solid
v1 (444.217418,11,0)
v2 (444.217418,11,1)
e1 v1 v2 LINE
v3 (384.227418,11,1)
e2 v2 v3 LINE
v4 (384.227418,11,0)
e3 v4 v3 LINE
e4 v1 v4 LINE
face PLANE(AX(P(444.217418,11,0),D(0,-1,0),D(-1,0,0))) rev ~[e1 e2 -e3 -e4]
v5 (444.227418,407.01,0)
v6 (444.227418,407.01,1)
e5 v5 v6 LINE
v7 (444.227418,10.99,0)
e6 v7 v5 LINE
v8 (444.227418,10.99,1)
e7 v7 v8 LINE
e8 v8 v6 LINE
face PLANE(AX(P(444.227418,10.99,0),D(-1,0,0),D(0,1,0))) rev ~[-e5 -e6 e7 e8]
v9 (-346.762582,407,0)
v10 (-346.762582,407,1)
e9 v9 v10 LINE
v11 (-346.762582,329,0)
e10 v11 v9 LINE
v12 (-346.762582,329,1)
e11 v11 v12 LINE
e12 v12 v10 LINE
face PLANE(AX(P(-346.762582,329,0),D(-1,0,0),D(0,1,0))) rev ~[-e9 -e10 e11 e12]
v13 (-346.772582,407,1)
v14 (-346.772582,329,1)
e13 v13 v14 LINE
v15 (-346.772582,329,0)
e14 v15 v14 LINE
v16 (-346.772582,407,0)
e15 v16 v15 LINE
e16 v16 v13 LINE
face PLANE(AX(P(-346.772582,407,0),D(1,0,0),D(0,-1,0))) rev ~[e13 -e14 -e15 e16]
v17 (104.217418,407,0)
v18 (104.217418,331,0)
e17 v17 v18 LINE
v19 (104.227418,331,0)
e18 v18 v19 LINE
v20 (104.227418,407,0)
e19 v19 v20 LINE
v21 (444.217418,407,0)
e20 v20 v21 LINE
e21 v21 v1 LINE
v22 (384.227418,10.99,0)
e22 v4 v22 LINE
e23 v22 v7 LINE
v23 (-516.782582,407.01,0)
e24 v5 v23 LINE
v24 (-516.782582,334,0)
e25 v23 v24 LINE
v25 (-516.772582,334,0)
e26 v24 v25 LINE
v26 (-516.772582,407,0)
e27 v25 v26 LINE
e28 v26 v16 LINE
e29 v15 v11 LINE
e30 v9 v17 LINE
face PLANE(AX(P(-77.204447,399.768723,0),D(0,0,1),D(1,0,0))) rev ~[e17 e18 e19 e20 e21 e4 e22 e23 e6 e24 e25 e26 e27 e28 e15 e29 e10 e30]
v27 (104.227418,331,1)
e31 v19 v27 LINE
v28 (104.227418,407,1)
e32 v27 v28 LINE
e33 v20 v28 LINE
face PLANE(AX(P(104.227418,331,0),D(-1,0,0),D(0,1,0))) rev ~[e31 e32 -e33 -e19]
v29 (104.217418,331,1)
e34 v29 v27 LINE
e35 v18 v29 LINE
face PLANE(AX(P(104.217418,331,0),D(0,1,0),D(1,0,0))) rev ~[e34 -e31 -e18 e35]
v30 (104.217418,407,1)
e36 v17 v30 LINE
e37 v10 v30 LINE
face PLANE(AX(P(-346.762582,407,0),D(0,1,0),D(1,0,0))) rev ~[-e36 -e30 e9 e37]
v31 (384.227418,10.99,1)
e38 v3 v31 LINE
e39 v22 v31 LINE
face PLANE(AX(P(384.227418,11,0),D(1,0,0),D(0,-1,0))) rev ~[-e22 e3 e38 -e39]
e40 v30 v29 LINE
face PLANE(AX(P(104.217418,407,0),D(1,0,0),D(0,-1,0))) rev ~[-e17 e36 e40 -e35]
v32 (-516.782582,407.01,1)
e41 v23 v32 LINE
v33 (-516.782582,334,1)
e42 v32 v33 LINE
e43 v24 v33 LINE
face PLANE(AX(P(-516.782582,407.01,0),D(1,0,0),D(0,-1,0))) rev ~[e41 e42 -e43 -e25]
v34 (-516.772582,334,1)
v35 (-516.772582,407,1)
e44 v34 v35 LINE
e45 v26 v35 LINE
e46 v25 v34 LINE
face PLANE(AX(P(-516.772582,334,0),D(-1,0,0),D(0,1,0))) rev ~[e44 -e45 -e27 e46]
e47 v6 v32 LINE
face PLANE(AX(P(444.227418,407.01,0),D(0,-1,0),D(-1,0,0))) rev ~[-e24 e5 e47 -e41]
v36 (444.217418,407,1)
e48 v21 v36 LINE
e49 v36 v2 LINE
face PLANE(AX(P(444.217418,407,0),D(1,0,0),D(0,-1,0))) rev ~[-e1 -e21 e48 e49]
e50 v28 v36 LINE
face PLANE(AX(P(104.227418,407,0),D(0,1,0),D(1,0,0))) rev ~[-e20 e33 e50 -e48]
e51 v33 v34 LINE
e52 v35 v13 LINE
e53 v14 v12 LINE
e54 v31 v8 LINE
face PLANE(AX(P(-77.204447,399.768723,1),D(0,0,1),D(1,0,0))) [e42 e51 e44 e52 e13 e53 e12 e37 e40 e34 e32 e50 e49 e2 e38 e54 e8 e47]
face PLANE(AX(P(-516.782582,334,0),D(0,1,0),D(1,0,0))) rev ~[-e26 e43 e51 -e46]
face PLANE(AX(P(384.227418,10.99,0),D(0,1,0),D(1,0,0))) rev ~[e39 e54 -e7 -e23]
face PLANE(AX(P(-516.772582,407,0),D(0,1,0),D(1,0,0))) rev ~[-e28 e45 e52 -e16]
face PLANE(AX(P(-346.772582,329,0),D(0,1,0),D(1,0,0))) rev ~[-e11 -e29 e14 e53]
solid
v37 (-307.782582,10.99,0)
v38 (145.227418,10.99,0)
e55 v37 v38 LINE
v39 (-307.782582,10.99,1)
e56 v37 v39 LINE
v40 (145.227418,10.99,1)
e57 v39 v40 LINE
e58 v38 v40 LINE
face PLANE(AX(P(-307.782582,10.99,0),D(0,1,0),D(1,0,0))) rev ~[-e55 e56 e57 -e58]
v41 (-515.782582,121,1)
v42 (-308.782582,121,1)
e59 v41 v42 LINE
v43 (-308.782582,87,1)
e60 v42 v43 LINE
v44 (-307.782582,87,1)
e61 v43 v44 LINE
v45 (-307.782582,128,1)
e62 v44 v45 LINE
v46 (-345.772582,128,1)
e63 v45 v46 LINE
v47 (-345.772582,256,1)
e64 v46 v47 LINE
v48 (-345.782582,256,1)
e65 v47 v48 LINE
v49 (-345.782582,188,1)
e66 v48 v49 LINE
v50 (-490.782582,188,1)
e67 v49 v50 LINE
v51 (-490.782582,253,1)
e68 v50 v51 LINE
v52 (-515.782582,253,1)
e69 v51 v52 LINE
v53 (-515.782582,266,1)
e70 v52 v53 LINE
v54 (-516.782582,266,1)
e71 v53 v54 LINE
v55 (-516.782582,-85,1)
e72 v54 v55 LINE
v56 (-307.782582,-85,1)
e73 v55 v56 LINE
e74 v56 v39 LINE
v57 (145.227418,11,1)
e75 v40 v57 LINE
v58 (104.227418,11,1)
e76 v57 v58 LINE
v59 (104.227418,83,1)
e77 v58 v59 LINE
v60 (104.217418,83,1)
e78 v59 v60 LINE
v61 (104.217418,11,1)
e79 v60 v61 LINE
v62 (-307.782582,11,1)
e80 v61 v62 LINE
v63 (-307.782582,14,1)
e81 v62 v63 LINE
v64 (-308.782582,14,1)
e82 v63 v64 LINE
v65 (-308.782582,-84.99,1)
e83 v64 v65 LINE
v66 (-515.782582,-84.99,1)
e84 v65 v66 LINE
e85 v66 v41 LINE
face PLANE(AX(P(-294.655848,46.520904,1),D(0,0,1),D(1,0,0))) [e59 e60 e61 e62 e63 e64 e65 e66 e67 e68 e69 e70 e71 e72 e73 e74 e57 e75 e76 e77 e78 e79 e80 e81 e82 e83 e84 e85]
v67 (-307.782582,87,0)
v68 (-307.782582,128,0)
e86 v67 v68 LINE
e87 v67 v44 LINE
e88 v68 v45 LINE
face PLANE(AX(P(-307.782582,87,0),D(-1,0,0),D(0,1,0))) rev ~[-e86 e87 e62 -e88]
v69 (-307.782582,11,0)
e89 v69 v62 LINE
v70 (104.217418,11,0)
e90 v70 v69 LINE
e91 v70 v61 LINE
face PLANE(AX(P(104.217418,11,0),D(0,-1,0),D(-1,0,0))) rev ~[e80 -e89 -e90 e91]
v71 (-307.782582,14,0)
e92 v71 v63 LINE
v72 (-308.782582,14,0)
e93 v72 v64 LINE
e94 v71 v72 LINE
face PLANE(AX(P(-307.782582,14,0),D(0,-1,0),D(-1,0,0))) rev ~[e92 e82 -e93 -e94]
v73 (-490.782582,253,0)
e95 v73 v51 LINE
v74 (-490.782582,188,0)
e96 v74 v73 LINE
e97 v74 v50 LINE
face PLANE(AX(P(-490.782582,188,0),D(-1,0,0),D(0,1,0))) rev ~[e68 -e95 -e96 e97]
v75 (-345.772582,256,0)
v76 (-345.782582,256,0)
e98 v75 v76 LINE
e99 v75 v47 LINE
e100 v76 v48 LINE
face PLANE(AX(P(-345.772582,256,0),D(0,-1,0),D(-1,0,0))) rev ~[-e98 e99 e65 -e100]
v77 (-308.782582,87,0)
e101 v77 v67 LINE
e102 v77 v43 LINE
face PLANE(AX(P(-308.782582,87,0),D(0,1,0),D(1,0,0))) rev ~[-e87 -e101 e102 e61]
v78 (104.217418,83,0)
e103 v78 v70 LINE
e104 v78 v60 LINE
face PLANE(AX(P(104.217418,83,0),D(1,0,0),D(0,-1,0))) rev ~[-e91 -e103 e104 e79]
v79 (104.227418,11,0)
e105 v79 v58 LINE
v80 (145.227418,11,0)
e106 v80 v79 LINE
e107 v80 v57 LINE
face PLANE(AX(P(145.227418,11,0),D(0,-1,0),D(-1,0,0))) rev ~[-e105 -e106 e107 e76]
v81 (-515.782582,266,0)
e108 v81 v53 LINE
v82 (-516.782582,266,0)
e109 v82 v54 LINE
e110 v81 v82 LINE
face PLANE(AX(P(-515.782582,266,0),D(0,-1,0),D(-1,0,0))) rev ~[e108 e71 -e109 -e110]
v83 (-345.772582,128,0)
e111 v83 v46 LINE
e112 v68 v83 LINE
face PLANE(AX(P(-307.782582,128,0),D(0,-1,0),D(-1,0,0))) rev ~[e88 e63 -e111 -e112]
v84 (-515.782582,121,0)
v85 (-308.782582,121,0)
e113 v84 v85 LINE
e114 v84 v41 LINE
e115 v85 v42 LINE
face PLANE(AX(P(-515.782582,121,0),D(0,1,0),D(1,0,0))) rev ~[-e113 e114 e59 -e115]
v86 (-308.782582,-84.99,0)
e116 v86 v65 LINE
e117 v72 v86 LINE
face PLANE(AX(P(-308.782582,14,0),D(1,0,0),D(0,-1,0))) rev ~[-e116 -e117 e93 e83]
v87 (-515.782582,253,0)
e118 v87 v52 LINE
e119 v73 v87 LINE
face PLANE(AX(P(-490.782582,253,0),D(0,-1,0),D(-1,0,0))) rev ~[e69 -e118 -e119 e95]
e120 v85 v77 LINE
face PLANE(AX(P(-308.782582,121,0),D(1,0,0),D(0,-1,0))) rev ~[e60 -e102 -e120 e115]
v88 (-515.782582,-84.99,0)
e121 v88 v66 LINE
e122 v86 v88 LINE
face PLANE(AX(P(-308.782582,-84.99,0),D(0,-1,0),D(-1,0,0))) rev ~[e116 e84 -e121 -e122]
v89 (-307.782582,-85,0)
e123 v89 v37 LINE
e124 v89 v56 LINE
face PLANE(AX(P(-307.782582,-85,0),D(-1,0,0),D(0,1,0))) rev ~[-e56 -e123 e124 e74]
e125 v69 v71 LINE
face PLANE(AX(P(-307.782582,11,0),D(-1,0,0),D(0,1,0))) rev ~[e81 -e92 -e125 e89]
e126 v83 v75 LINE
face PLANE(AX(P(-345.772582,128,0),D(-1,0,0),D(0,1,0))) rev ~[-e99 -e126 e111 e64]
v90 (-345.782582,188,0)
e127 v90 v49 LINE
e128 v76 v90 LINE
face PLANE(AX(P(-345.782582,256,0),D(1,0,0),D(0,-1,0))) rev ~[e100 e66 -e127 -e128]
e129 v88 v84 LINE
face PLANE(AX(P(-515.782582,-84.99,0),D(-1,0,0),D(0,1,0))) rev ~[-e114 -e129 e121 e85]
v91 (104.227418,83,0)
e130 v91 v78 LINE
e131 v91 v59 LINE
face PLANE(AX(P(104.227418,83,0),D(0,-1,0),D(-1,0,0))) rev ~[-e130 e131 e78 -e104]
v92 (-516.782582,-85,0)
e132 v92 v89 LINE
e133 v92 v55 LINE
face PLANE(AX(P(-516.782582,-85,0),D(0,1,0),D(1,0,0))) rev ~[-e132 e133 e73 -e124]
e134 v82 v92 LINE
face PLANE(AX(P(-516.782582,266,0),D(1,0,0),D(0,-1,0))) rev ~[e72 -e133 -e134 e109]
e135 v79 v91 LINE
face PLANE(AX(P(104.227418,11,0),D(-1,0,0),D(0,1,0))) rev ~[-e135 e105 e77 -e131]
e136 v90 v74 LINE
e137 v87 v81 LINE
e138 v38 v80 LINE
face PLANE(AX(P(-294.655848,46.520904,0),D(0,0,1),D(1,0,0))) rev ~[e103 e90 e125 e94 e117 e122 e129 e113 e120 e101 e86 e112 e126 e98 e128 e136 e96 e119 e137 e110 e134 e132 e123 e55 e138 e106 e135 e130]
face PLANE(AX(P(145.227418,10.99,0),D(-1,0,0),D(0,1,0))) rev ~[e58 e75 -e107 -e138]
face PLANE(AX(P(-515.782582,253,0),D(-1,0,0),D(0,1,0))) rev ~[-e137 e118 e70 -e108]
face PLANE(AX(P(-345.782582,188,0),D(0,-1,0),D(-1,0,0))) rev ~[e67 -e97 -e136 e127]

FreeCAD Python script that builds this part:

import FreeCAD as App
import Part
import Sketcher

doc = App.newDocument("Part")
body = doc.addObject("PartDesign::Body", "Body")
body.AllowCompound = True

# Sketch on XY plane
sketch1 = doc.addObject("Sketcher::SketchObject", "Sketch")
body.addObject(sketch1)
sketch1.AttachmentSupport = (doc.XY_Plane, [""])
sketch1.MapMode = "FlatFace"
sketch1.addGeometry(Part.LineSegment(App.Vector(104.217418, 83, 0), App.Vector(104.217418, 11, 0)), False)
sketch1.addGeometry(Part.LineSegment(App.Vector(104.217418, 11, 0), App.Vector(-307.782582, 11, 0)), False)
sketch1.addGeometry(Part.LineSegment(App.Vector(-307.782582, 11, 0), App.Vector(-307.782582, 14, 0)), False)
sketch1.addGeometry(Part.LineSegment(App.Vector(-307.782582, 14, 0), App.Vector(-308.782582, 14, 0)), False)
sketch1.addGeometry(Part.LineSegment(App.Vector(-308.782582, 14, 0), App.Vector(-308.782582, -84.99, 0)), False)
sketch1.addGeometry(Part.LineSegment(App.Vector(-308.782582, -84.99, 0), App.Vector(-515.782582, -84.99, 0)), False)
sketch1.addGeometry(Part.LineSegment(App.Vector(-515.782582, -84.99, 0), App.Vector(-515.782582, 121, 0)), False)
sketch1.addGeometry(Part.LineSegment(App.Vector(-515.782582, 121, 0), App.Vector(-308.782582, 121, 0)), False)
sketch1.addGeometry(Part.LineSegment(App.Vector(-308.782582, 121, 0), App.Vector(-308.782582, 87, 0)), False)
sketch1.addGeometry(Part.LineSegment(App.Vector(-308.782582, 87, 0), App.Vector(-307.782582, 87, 0)), False)
sketch1.addGeometry(Part.LineSegment(App.Vector(-307.782582, 87, 0), App.Vector(-307.782582, 128, 0)), False)
sketch1.addGeometry(Part.LineSegment(App.Vector(-307.782582, 128, 0), App.Vector(-345.772582, 128, 0)), False)
sketch1.addGeometry(Part.LineSegment(App.Vector(-345.772582, 128, 0), App.Vector(-345.772582, 256, 0)), False)
sketch1.addGeometry(Part.LineSegment(App.Vector(-345.772582, 256, 0), App.Vector(-345.782582, 256, 0)), False)
sketch1.addGeometry(Part.LineSegment(App.Vector(-345.782582, 256, 0), App.Vector(-345.782582, 188, 0)), False)
sketch1.addGeometry(Part.LineSegment(App.Vector(-345.782582, 188, 0), App.Vector(-490.782582, 188, 0)), False)
sketch1.addGeometry(Part.LineSegment(App.Vector(-490.782582, 188, 0), App.Vector(-490.782582, 253, 0)), False)
sketch1.addGeometry(Part.LineSegment(App.Vector(-490.782582, 253, 0), App.Vector(-515.782582, 253, 0)), False)
sketch1.addGeometry(Part.LineSegment(App.Vector(-515.782582, 253, 0), App.Vector(-515.782582, 266, 0)), False)
sketch1.addGeometry(Part.LineSegment(App.Vector(-515.782582, 266, 0), App.Vector(-516.782582, 266, 0)), False)
sketch1.addGeometry(Part.LineSegment(App.Vector(-516.782582, 266, 0), App.Vector(-516.782582, -85, 0)), False)
sketch1.addGeometry(Part.LineSegment(App.Vector(-516.782582, -85, 0), App.Vector(-307.782582, -85, 0)), False)
sketch1.addGeometry(Part.LineSegment(App.Vector(-307.782582, -85, 0), App.Vector(-307.782582, 10.99, 0)), False)
sketch1.addGeometry(Part.LineSegment(App.Vector(-307.782582, 10.99, 0), App.Vector(145.227418, 10.99, 0)), False)
sketch1.addGeometry(Part.LineSegment(App.Vector(145.227418, 10.99, 0), App.Vector(145.227418, 11, 0)), False)
sketch1.addGeometry(Part.LineSegment(App.Vector(145.227418, 11, 0), App.Vector(104.227418, 11, 0)), False)
sketch1.addGeometry(Part.LineSegment(App.Vector(104.227418, 11, 0), App.Vector(104.227418, 83, 0)), False)
sketch1.addGeometry(Part.LineSegment(App.Vector(104.227418, 83, 0), App.Vector(104.217418, 83, 0)), False)
sketch1.addGeometry(Part.LineSegment(App.Vector(-346.762582, 407, 0), App.Vector(104.217418, 407, 0)), False)
sketch1.addGeometry(Part.LineSegment(App.Vector(104.217418, 407, 0), App.Vector(104.217418, 331, 0)), False)
sketch1.addGeometry(Part.LineSegment(App.Vector(104.217418, 331, 0), App.Vector(104.227418, 331, 0)), False)
sketch1.addGeometry(Part.LineSegment(App.Vector(104.227418, 331, 0), App.Vector(104.227418, 407, 0)), False)
sketch1.addGeometry(Part.LineSegment(App.Vector(104.227418, 407, 0), App.Vector(444.217418, 407, 0)), False)
sketch1.addGeometry(Part.LineSegment(App.Vector(444.217418, 407, 0), App.Vector(444.217418, 11, 0)), False)
sketch1.addGeometry(Part.LineSegment(App.Vector(444.217418, 11, 0), App.Vector(384.227418, 11, 0)), False)
sketch1.addGeometry(Part.LineSegment(App.Vector(384.227418, 11, 0), App.Vector(384.227418, 10.99, 0)), False)
sketch1.addGeometry(Part.LineSegment(App.Vector(384.227418, 10.99, 0), App.Vector(444.227418, 10.99, 0)), False)
sketch1.addGeometry(Part.LineSegment(App.Vector(444.227418, 10.99, 0), App.Vector(444.227418, 407.01, 0)), False)
sketch1.addGeometry(Part.LineSegment(App.Vector(444.227418, 407.01, 0), App.Vector(-516.782582, 407.01, 0)), False)
sketch1.addGeometry(Part.LineSegment(App.Vector(-516.782582, 407.01, 0), App.Vector(-516.782582, 334, 0)), False)
sketch1.addGeometry(Part.LineSegment(App.Vector(-516.782582, 334, 0), App.Vector(-516.772582, 334, 0)), False)
sketch1.addGeometry(Part.LineSegment(App.Vector(-516.772582, 334, 0), App.Vector(-516.772582, 407, 0)), False)
sketch1.addGeometry(Part.LineSegment(App.Vector(-516.772582, 407, 0), App.Vector(-346.772582, 407, 0)), False)
sketch1.addGeometry(Part.LineSegment(App.Vector(-346.772582, 407, 0), App.Vector(-346.772582, 329, 0)), False)
sketch1.addGeometry(Part.LineSegment(App.Vector(-346.772582, 329, 0), App.Vector(-346.762582, 329, 0)), False)
sketch1.addGeometry(Part.LineSegment(App.Vector(-346.762582, 329, 0), App.Vector(-346.762582, 407, 0)), False)
sketch1.addConstraint(Sketcher.Constraint("Coincident", 0, 2, 1, 1))
sketch1.addConstraint(Sketcher.Constraint("Coincident", 1, 2, 2, 1))
sketch1.addConstraint(Sketcher.Constraint("Coincident", 2, 2, 3, 1))
sketch1.addConstraint(Sketcher.Constraint("Coincident", 3, 2, 4, 1))
sketch1.addConstraint(Sketcher.Constraint("Coincident", 4, 2, 5, 1))
sketch1.addConstraint(Sketcher.Constraint("Coincident", 5, 2, 6, 1))
sketch1.addConstraint(Sketcher.Constraint("Coincident", 6, 2, 7, 1))
sketch1.addConstraint(Sketcher.Constraint("Coincident", 7, 2, 8, 1))
sketch1.addConstraint(Sketcher.Constraint("Coincident", 8, 2, 9, 1))
sketch1.addConstraint(Sketcher.Constraint("Coincident", 9, 2, 10, 1))
sketch1.addConstraint(Sketcher.Constraint("Coincident", 10, 2, 11, 1))
sketch1.addConstraint(Sketcher.Constraint("Coincident", 11, 2, 12, 1))
sketch1.addConstraint(Sketcher.Constraint("Coincident", 12, 2, 13, 1))
sketch1.addConstraint(Sketcher.Constraint("Coincident", 13, 2, 14, 1))
sketch1.addConstraint(Sketcher.Constraint("Coincident", 14, 2, 15, 1))
sketch1.addConstraint(Sketcher.Constraint("Coincident", 15, 2, 16, 1))
sketch1.addConstraint(Sketcher.Constraint("Coincident", 16, 2, 17, 1))
sketch1.addConstraint(Sketcher.Constraint("Coincident", 17, 2, 18, 1))
sketch1.addConstraint(Sketcher.Constraint("Coincident", 18, 2, 19, 1))
sketch1.addConstraint(Sketcher.Constraint("Coincident", 19, 2, 20, 1))
sketch1.addConstraint(Sketcher.Constraint("Coincident", 20, 2, 21, 1))
sketch1.addConstraint(Sketcher.Constraint("Coincident", 21, 2, 22, 1))
sketch1.addConstraint(Sketcher.Constraint("Coincident", 22, 2, 23, 1))
sketch1.addConstraint(Sketcher.Constraint("Coincident", 23, 2, 24, 1))
sketch1.addConstraint(Sketcher.Constraint("Coincident", 24, 2, 25, 1))
sketch1.addConstraint(Sketcher.Constraint("Coincident", 25, 2, 26, 1))
sketch1.addConstraint(Sketcher.Constraint("Coincident", 26, 2, 27, 1))
sketch1.addConstraint(Sketcher.Constraint("Coincident", 27, 2, 0, 1))
sketch1.addConstraint(Sketcher.Constraint("Coincident", 28, 2, 29, 1))
sketch1.addConstraint(Sketcher.Constraint("Coincident", 29, 2, 30, 1))
sketch1.addConstraint(Sketcher.Constraint("Coincident", 30, 2, 31, 1))
sketch1.addConstraint(Sketcher.Constraint("Coincident", 31, 2, 32, 1))
sketch1.addConstraint(Sketcher.Constraint("Coincident", 32, 2, 33, 1))
sketch1.addConstraint(Sketcher.Constraint("Coincident", 33, 2, 34, 1))
sketch1.addConstraint(Sketcher.Constraint("Coincident", 34, 2, 35, 1))
sketch1.addConstraint(Sketcher.Constraint("Coincident", 35, 2, 36, 1))
sketch1.addConstraint(Sketcher.Constraint("Coincident", 36, 2, 37, 1))
sketch1.addConstraint(Sketcher.Constraint("Coincident", 37, 2, 38, 1))
sketch1.addConstraint(Sketcher.Constraint("Coincident", 38, 2, 39, 1))
sketch1.addConstraint(Sketcher.Constraint("Coincident", 39, 2, 40, 1))
sketch1.addConstraint(Sketcher.Constraint("Coincident", 40, 2, 41, 1))
sketch1.addConstraint(Sketcher.Constraint("Coincident", 41, 2, 42, 1))
sketch1.addConstraint(Sketcher.Constraint("Coincident", 42, 2, 43, 1))
sketch1.addConstraint(Sketcher.Constraint("Coincident", 43, 2, 44, 1))
sketch1.addConstraint(Sketcher.Constraint("Coincident", 44, 2, 45, 1))
sketch1.addConstraint(Sketcher.Constraint("Coincident", 45, 2, 28, 1))
sketch1.addConstraint(Sketcher.Constraint("Vertical", 0))
sketch1.addConstraint(Sketcher.Constraint("Horizontal", 1))
sketch1.addConstraint(Sketcher.Constraint("Vertical", 2))
sketch1.addConstraint(Sketcher.Constraint("Horizontal", 3))
sketch1.addConstraint(Sketcher.Constraint("Vertical", 4))
sketch1.addConstraint(Sketcher.Constraint("Horizontal", 5))
sketch1.addConstraint(Sketcher.Constraint("Vertical", 6))
sketch1.addConstraint(Sketcher.Constraint("Horizontal", 7))
sketch1.addConstraint(Sketcher.Constraint("Vertical", 8))
sketch1.addConstraint(Sketcher.Constraint("Horizontal", 9))
sketch1.addConstraint(Sketcher.Constraint("Vertical", 10))
sketch1.addConstraint(Sketcher.Constraint("Horizontal", 11))
sketch1.addConstraint(Sketcher.Constraint("Vertical", 12))
sketch1.addConstraint(Sketcher.Constraint("Horizontal", 13))
sketch1.addConstraint(Sketcher.Constraint("Vertical", 14))
sketch1.addConstraint(Sketcher.Constraint("Horizontal", 15))
sketch1.addConstraint(Sketcher.Constraint("Vertical", 16))
sketch1.addConstraint(Sketcher.Constraint("Horizontal", 17))
sketch1.addConstraint(Sketcher.Constraint("Vertical", 18))
sketch1.addConstraint(Sketcher.Constraint("Horizontal", 19))
sketch1.addConstraint(Sketcher.Constraint("Vertical", 20))
sketch1.addConstraint(Sketcher.Constraint("Horizontal", 21))
sketch1.addConstraint(Sketcher.Constraint("Vertical", 22))
sketch1.addConstraint(Sketcher.Constraint("Horizontal", 23))
sketch1.addConstraint(Sketcher.Constraint("Vertical", 24))
sketch1.addConstraint(Sketcher.Constraint("Horizontal", 25))
sketch1.addConstraint(Sketcher.Constraint("Vertical", 26))
sketch1.addConstraint(Sketcher.Constraint("Horizontal", 27))
sketch1.addConstraint(Sketcher.Constraint("Horizontal", 28))
sketch1.addConstraint(Sketcher.Constraint("Vertical", 29))
sketch1.addConstraint(Sketcher.Constraint("Horizontal", 30))
sketch1.addConstraint(Sketcher.Constraint("Vertical", 31))
sketch1.addConstraint(Sketcher.Constraint("Horizontal", 32))
sketch1.addConstraint(Sketcher.Constraint("Vertical", 33))
sketch1.addConstraint(Sketcher.Constraint("Horizontal", 34))
sketch1.addConstraint(Sketcher.Constraint("Vertical", 35))
sketch1.addConstraint(Sketcher.Constraint("Horizontal", 36))
sketch1.addConstraint(Sketcher.Constraint("Vertical", 37))
sketch1.addConstraint(Sketcher.Constraint("Horizontal", 38))
sketch1.addConstraint(Sketcher.Constraint("Vertical", 39))
sketch1.addConstraint(Sketcher.Constraint("Horizontal", 40))
sketch1.addConstraint(Sketcher.Constraint("Vertical", 41))
sketch1.addConstraint(Sketcher.Constraint("Horizontal", 42))
sketch1.addConstraint(Sketcher.Constraint("Vertical", 43))
sketch1.addConstraint(Sketcher.Constraint("Horizontal", 44))
sketch1.addConstraint(Sketcher.Constraint("Vertical", 45))
sketch1.addConstraint(Sketcher.Constraint("Horizontal", 1, 2, 24, 2))
sketch1.addConstraint(Sketcher.Constraint("Horizontal", 28, 2, 31, 2))
sketch1.addConstraint(Sketcher.Constraint("Horizontal", 25, 2, 33, 2))
sketch1.addConstraint(Sketcher.Constraint("Horizontal", 23, 2, 35, 2))
sketch1.addConstraint(Sketcher.Constraint("Horizontal", 32, 2, 41, 2))
sketch1.addConstraint(Sketcher.Constraint("Vertical", 4, 2, 7, 2))
sketch1.addConstraint(Sketcher.Constraint("Vertical", 2, 2, 9, 2))
sketch1.addConstraint(Sketcher.Constraint("Vertical", 6, 2, 17, 2))
sketch1.addConstraint(Sketcher.Constraint("Vertical", 10, 2, 21, 2))
sketch1.addConstraint(Sketcher.Constraint("Vertical", 27, 2, 28, 2))
sketch1.addConstraint(Sketcher.Constraint("Vertical", 26, 2, 30, 2))
sketch1.addConstraint(Sketcher.Constraint("Vertical", 20, 2, 38, 2))
sketch1.addConstraint(Sketcher.Constraint("Equal", 9, 19))
sketch1.addConstraint(Sketcher.Constraint("Equal", 13, 27))
sketch1.addConstraint(Sketcher.Constraint("Equal", 30, 40))
sketch1.addConstraint(Sketcher.Constraint("Equal", 40, 44))
sketch1.addConstraint(Sketcher.Constraint("Equal", 25, 10))
sketch1.addConstraint(Sketcher.Constraint("Equal", 44, 24))
sketch1.addConstraint(Sketcher.Constraint("DistanceX", 1, 2, 1, 1, 412.0))
sketch1.addConstraint(Sketcher.Constraint("DistanceX", 3, 2, 3, 1, 1.0))
sketch1.addConstraint(Sketcher.Constraint("DistanceX", 5, 2, 5, 1, 207.0))
sketch1.addConstraint(Sketcher.Constraint("DistanceX", 15, 2, 15, 1, 145.0))
sketch1.addConstraint(Sketcher.Constraint("DistanceX", 17, 2, 17, 1, 25.0))
sketch1.addConstraint(Sketcher.Constraint("DistanceX", 25, 2, 25, 1, 41.0))
sketch1.addConstraint(Sketcher.Constraint("DistanceX", 36, 1, 36, 2, 60.0))
sketch1.addConstraint(Sketcher.Constraint("DistanceX", 42, 1, 42, 2, 170.0))
sketch1.addConstraint(Sketcher.Constraint("DistanceY", 0, 2, 0, 1, 72.0))
sketch1.addConstraint(Sketcher.Constraint("DistanceY", 2, 1, 2, 2, 3.0))
sketch1.addConstraint(Sketcher.Constraint("DistanceY", 8, 2, 8, 1, 34.0))
sketch1.addConstraint(Sketcher.Constraint("DistanceY", 12, 1, 12, 2, 128.0))
sketch1.addConstraint(Sketcher.Constraint("DistanceY", 14, 2, 14, 1, 68.0))
sketch1.addConstraint(Sketcher.Constraint("DistanceY", 16, 1, 16, 2, 65.0))
sketch1.addConstraint(Sketcher.Constraint("DistanceY", 18, 1, 18, 2, 13.0))
sketch1.addConstraint(Sketcher.Constraint("DistanceY", 20, 2, 20, 1, 351.0))
sketch1.addConstraint(Sketcher.Constraint("DistanceY", 29, 2, 29, 1, 76.0))
sketch1.addConstraint(Sketcher.Constraint("DistanceY", 33, 2, 33, 1, 396.0))
sketch1.addConstraint(Sketcher.Constraint("DistanceY", 41, 1, 41, 2, 73.0))
sketch1.addConstraint(Sketcher.Constraint("DistanceY", 43, 2, 43, 1, 78.0))
sketch1.addConstraint(Sketcher.Constraint("DistanceY", -1, 1, 0, 2, 11.0))
sketch1.addConstraint(Sketcher.Constraint("DistanceY", -1, 1, 6, 2, 121.0))
sketch1.addConstraint(Sketcher.Constraint("DistanceX", 28, 2, 32, 2, 340.0))
sketch1.addConstraint(Sketcher.Constraint("DistanceX", 24, 2, 34, 2, 239.0))
sketch1.addConstraint(Sketcher.Constraint("DistanceX", 11, 2, 11, 1, 37.99))
sketch1.addConstraint(Sketcher.Constraint("DistanceY", 4, 2, 4, 1, 98.99))
sketch1.addConstraint(Sketcher.Constraint("DistanceY", 37, 1, 37, 2, 396.02))
sketch1.addConstraint(Sketcher.Constraint("DistanceX", 1, 2, -1, 1, 307.782582))
pad1 = doc.addObject("PartDesign::Pad", "Pad")
body.addObject(pad1)
pad1.Profile = sketch1
pad1.Length = 1

doc.recompute()
